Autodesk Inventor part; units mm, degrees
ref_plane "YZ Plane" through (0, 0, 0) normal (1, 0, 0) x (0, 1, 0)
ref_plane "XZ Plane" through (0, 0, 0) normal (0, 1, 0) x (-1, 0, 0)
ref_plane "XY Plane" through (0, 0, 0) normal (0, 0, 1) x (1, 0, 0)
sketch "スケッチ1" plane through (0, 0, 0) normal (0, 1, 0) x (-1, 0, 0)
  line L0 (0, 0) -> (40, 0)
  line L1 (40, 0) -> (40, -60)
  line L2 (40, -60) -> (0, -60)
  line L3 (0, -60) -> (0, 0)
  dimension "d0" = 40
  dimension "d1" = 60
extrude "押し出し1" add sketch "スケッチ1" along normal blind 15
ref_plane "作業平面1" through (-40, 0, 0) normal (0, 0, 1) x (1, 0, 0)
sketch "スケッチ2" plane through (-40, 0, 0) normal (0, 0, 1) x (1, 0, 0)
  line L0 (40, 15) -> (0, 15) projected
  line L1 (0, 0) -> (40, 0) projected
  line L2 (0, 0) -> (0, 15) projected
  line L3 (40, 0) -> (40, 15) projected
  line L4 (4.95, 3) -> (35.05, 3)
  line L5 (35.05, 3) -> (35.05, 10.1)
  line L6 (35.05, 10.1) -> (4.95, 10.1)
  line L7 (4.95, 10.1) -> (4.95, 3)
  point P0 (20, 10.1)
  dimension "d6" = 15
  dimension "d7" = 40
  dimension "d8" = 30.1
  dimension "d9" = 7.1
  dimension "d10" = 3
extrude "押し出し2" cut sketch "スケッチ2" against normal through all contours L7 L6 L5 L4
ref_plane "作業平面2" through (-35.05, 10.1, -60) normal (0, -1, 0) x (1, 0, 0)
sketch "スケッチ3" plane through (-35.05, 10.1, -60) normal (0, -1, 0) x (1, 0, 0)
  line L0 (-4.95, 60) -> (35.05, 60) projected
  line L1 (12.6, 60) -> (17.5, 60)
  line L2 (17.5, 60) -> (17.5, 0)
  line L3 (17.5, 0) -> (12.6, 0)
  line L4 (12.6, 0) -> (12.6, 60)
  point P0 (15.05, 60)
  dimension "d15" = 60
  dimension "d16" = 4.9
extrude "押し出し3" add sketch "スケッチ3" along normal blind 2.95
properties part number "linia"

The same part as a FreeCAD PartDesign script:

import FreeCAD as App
import Part
import Sketcher
Q = App.Units.Quantity

doc = App.newDocument("Part")
body = doc.addObject("PartDesign::Body", "Body")

sketch1 = body.newObject("Sketcher::SketchObject", "Sketch")
sketch1.AttachmentSupport = (doc.getObject("XZ_Plane"), [""])
sketch1.MapMode = "FlatFace"
sketch1.addGeometry(Part.LineSegment(App.Vector(-40, 0, 0), App.Vector(0, 0, 0)), False)
sketch1.addGeometry(Part.LineSegment(App.Vector(0, 0, 0), App.Vector(0, -60, 0)), False)
sketch1.addGeometry(Part.LineSegment(App.Vector(0, -60, 0), App.Vector(-40, -60, 0)), False)
sketch1.addGeometry(Part.LineSegment(App.Vector(-40, -60, 0), App.Vector(-40, 0, 0)), False)
sketch1.addConstraint(Sketcher.Constraint("Coincident", 0, 2, 1, 1))
sketch1.addConstraint(Sketcher.Constraint("Coincident", 1, 2, 2, 1))
sketch1.addConstraint(Sketcher.Constraint("Coincident", 2, 2, 3, 1))
sketch1.addConstraint(Sketcher.Constraint("Coincident", 3, 2, 0, 1))
sketch1.addConstraint(Sketcher.Constraint("Horizontal", 0))
sketch1.addConstraint(Sketcher.Constraint("Vertical", 1))
sketch1.addConstraint(Sketcher.Constraint("Horizontal", 2))
sketch1.addConstraint(Sketcher.Constraint("Vertical", 3))
sketch1.addConstraint(Sketcher.Constraint("Coincident", 0, 2, -1, 1))
sketch1.addConstraint(Sketcher.Constraint("DistanceX", 0, 1, 0, 2, Q("40 mm")))
sketch1.addConstraint(Sketcher.Constraint("DistanceY", 1, 2, 1, 1, Q("60 mm")))
pad1 = body.newObject("PartDesign::Pad", "Pad")
pad1.Profile = sketch1
pad1.Length = 15
pad1.Reversed = True

sketch2 = body.newObject("Sketcher::SketchObject", "Sketch001")
sketch2.AttachmentSupport = (doc.getObject("XY_Plane"), [""])
sketch2.MapMode = "FlatFace"
sketch2.addGeometry(Part.LineSegment(App.Vector(-35, 10, 0), App.Vector(-35, 3, 0)), False)
sketch2.addGeometry(Part.LineSegment(App.Vector(-35, 3, 0), App.Vector(-5, 3, 0)), False)
sketch2.addGeometry(Part.LineSegment(App.Vector(-5, 3, 0), App.Vector(-5, 10, 0)), False)
sketch2.addGeometry(Part.LineSegment(App.Vector(-5, 10, 0), App.Vector(-35, 10, 0)), False)
sketch2.addConstraint(Sketcher.Constraint("Coincident", 0, 2, 1, 1))
sketch2.addConstraint(Sketcher.Constraint("Coincident", 1, 2, 2, 1))
sketch2.addConstraint(Sketcher.Constraint("Coincident", 2, 2, 3, 1))
sketch2.addConstraint(Sketcher.Constraint("Coincident", 3, 2, 0, 1))
sketch2.addConstraint(Sketcher.Constraint("Vertical", 0))
sketch2.addConstraint(Sketcher.Constraint("Horizontal", 1))
sketch2.addConstraint(Sketcher.Constraint("Vertical", 2))
sketch2.addConstraint(Sketcher.Constraint("Horizontal", 3))
sketch2.addConstraint(Sketcher.Constraint("DistanceX", 1, 1, 1, 2, Q("30.1 mm")))
sketch2.addConstraint(Sketcher.Constraint("DistanceY", 0, 2, 0, 1, Q("7.1 mm")))
sketch2.addConstraint(Sketcher.Constraint("DistanceY", -1, 1, 0, 2, Q("3 mm")))
sketch2.addConstraint(Sketcher.Constraint("DistanceX", 0, 2, -1, 1, Q("35.05 mm")))
pocket1 = body.newObject("PartDesign::Pocket", "Pocket")
pocket1.Profile = sketch2
pocket1.Type = "ThroughAll"

sketch3 = body.newObject("Sketcher::SketchObject", "Sketch002")
sketch3.AttachmentSupport = (doc.getObject("XZ_Plane"), [""])
sketch3.MapMode = "FlatFace"
sketch3.AttachmentOffset = App.Placement(App.Vector(0, 0, -10.1), App.Rotation())
sketch3.addGeometry(Part.LineSegment(App.Vector(-17.6, 0, 0), App.Vector(-22.4, 0, 0)), False)
sketch3.addGeometry(Part.LineSegment(App.Vector(-22.4, 0, 0), App.Vector(-22.4, -60, 0)), False)
sketch3.addGeometry(Part.LineSegment(App.Vector(-22.4, -60, 0), App.Vector(-17.6, -60, 0)), False)
sketch3.addGeometry(Part.LineSegment(App.Vector(-17.6, -60, 0), App.Vector(-17.6, 0, 0)), False)
sketch3.addConstraint(Sketcher.Constraint("Coincident", 0, 2, 1, 1))
sketch3.addConstraint(Sketcher.Constraint("Coincident", 1, 2, 2, 1))
sketch3.addConstraint(Sketcher.Constraint("Coincident", 2, 2, 3, 1))
sketch3.addConstraint(Sketcher.Constraint("Coincident", 3, 2, 0, 1))
sketch3.addConstraint(Sketcher.Constraint("Horizontal", 0))
sketch3.addConstraint(Sketcher.Constraint("Vertical", 1))
sketch3.addConstraint(Sketcher.Constraint("Horizontal", 2))
sketch3.addConstraint(Sketcher.Constraint("Vertical", 3))
sketch3.addConstraint(Sketcher.Constraint("PointOnObject", 0, 2, -1))
sketch3.addConstraint(Sketcher.Constraint("DistanceY", 1, 2, 1, 1, Q("60 mm")))
sketch3.addConstraint(Sketcher.Constraint("DistanceX", 0, 2, 0, 1, Q("4.9 mm")))
sketch3.addConstraint(Sketcher.Constraint("DistanceX", 0, 2, -1, 1, Q("22.45 mm")))
pad2 = body.newObject("PartDesign::Pad", "Pad001")
pad2.Profile = sketch3
pad2.Length = 2.95

doc.recompute()
